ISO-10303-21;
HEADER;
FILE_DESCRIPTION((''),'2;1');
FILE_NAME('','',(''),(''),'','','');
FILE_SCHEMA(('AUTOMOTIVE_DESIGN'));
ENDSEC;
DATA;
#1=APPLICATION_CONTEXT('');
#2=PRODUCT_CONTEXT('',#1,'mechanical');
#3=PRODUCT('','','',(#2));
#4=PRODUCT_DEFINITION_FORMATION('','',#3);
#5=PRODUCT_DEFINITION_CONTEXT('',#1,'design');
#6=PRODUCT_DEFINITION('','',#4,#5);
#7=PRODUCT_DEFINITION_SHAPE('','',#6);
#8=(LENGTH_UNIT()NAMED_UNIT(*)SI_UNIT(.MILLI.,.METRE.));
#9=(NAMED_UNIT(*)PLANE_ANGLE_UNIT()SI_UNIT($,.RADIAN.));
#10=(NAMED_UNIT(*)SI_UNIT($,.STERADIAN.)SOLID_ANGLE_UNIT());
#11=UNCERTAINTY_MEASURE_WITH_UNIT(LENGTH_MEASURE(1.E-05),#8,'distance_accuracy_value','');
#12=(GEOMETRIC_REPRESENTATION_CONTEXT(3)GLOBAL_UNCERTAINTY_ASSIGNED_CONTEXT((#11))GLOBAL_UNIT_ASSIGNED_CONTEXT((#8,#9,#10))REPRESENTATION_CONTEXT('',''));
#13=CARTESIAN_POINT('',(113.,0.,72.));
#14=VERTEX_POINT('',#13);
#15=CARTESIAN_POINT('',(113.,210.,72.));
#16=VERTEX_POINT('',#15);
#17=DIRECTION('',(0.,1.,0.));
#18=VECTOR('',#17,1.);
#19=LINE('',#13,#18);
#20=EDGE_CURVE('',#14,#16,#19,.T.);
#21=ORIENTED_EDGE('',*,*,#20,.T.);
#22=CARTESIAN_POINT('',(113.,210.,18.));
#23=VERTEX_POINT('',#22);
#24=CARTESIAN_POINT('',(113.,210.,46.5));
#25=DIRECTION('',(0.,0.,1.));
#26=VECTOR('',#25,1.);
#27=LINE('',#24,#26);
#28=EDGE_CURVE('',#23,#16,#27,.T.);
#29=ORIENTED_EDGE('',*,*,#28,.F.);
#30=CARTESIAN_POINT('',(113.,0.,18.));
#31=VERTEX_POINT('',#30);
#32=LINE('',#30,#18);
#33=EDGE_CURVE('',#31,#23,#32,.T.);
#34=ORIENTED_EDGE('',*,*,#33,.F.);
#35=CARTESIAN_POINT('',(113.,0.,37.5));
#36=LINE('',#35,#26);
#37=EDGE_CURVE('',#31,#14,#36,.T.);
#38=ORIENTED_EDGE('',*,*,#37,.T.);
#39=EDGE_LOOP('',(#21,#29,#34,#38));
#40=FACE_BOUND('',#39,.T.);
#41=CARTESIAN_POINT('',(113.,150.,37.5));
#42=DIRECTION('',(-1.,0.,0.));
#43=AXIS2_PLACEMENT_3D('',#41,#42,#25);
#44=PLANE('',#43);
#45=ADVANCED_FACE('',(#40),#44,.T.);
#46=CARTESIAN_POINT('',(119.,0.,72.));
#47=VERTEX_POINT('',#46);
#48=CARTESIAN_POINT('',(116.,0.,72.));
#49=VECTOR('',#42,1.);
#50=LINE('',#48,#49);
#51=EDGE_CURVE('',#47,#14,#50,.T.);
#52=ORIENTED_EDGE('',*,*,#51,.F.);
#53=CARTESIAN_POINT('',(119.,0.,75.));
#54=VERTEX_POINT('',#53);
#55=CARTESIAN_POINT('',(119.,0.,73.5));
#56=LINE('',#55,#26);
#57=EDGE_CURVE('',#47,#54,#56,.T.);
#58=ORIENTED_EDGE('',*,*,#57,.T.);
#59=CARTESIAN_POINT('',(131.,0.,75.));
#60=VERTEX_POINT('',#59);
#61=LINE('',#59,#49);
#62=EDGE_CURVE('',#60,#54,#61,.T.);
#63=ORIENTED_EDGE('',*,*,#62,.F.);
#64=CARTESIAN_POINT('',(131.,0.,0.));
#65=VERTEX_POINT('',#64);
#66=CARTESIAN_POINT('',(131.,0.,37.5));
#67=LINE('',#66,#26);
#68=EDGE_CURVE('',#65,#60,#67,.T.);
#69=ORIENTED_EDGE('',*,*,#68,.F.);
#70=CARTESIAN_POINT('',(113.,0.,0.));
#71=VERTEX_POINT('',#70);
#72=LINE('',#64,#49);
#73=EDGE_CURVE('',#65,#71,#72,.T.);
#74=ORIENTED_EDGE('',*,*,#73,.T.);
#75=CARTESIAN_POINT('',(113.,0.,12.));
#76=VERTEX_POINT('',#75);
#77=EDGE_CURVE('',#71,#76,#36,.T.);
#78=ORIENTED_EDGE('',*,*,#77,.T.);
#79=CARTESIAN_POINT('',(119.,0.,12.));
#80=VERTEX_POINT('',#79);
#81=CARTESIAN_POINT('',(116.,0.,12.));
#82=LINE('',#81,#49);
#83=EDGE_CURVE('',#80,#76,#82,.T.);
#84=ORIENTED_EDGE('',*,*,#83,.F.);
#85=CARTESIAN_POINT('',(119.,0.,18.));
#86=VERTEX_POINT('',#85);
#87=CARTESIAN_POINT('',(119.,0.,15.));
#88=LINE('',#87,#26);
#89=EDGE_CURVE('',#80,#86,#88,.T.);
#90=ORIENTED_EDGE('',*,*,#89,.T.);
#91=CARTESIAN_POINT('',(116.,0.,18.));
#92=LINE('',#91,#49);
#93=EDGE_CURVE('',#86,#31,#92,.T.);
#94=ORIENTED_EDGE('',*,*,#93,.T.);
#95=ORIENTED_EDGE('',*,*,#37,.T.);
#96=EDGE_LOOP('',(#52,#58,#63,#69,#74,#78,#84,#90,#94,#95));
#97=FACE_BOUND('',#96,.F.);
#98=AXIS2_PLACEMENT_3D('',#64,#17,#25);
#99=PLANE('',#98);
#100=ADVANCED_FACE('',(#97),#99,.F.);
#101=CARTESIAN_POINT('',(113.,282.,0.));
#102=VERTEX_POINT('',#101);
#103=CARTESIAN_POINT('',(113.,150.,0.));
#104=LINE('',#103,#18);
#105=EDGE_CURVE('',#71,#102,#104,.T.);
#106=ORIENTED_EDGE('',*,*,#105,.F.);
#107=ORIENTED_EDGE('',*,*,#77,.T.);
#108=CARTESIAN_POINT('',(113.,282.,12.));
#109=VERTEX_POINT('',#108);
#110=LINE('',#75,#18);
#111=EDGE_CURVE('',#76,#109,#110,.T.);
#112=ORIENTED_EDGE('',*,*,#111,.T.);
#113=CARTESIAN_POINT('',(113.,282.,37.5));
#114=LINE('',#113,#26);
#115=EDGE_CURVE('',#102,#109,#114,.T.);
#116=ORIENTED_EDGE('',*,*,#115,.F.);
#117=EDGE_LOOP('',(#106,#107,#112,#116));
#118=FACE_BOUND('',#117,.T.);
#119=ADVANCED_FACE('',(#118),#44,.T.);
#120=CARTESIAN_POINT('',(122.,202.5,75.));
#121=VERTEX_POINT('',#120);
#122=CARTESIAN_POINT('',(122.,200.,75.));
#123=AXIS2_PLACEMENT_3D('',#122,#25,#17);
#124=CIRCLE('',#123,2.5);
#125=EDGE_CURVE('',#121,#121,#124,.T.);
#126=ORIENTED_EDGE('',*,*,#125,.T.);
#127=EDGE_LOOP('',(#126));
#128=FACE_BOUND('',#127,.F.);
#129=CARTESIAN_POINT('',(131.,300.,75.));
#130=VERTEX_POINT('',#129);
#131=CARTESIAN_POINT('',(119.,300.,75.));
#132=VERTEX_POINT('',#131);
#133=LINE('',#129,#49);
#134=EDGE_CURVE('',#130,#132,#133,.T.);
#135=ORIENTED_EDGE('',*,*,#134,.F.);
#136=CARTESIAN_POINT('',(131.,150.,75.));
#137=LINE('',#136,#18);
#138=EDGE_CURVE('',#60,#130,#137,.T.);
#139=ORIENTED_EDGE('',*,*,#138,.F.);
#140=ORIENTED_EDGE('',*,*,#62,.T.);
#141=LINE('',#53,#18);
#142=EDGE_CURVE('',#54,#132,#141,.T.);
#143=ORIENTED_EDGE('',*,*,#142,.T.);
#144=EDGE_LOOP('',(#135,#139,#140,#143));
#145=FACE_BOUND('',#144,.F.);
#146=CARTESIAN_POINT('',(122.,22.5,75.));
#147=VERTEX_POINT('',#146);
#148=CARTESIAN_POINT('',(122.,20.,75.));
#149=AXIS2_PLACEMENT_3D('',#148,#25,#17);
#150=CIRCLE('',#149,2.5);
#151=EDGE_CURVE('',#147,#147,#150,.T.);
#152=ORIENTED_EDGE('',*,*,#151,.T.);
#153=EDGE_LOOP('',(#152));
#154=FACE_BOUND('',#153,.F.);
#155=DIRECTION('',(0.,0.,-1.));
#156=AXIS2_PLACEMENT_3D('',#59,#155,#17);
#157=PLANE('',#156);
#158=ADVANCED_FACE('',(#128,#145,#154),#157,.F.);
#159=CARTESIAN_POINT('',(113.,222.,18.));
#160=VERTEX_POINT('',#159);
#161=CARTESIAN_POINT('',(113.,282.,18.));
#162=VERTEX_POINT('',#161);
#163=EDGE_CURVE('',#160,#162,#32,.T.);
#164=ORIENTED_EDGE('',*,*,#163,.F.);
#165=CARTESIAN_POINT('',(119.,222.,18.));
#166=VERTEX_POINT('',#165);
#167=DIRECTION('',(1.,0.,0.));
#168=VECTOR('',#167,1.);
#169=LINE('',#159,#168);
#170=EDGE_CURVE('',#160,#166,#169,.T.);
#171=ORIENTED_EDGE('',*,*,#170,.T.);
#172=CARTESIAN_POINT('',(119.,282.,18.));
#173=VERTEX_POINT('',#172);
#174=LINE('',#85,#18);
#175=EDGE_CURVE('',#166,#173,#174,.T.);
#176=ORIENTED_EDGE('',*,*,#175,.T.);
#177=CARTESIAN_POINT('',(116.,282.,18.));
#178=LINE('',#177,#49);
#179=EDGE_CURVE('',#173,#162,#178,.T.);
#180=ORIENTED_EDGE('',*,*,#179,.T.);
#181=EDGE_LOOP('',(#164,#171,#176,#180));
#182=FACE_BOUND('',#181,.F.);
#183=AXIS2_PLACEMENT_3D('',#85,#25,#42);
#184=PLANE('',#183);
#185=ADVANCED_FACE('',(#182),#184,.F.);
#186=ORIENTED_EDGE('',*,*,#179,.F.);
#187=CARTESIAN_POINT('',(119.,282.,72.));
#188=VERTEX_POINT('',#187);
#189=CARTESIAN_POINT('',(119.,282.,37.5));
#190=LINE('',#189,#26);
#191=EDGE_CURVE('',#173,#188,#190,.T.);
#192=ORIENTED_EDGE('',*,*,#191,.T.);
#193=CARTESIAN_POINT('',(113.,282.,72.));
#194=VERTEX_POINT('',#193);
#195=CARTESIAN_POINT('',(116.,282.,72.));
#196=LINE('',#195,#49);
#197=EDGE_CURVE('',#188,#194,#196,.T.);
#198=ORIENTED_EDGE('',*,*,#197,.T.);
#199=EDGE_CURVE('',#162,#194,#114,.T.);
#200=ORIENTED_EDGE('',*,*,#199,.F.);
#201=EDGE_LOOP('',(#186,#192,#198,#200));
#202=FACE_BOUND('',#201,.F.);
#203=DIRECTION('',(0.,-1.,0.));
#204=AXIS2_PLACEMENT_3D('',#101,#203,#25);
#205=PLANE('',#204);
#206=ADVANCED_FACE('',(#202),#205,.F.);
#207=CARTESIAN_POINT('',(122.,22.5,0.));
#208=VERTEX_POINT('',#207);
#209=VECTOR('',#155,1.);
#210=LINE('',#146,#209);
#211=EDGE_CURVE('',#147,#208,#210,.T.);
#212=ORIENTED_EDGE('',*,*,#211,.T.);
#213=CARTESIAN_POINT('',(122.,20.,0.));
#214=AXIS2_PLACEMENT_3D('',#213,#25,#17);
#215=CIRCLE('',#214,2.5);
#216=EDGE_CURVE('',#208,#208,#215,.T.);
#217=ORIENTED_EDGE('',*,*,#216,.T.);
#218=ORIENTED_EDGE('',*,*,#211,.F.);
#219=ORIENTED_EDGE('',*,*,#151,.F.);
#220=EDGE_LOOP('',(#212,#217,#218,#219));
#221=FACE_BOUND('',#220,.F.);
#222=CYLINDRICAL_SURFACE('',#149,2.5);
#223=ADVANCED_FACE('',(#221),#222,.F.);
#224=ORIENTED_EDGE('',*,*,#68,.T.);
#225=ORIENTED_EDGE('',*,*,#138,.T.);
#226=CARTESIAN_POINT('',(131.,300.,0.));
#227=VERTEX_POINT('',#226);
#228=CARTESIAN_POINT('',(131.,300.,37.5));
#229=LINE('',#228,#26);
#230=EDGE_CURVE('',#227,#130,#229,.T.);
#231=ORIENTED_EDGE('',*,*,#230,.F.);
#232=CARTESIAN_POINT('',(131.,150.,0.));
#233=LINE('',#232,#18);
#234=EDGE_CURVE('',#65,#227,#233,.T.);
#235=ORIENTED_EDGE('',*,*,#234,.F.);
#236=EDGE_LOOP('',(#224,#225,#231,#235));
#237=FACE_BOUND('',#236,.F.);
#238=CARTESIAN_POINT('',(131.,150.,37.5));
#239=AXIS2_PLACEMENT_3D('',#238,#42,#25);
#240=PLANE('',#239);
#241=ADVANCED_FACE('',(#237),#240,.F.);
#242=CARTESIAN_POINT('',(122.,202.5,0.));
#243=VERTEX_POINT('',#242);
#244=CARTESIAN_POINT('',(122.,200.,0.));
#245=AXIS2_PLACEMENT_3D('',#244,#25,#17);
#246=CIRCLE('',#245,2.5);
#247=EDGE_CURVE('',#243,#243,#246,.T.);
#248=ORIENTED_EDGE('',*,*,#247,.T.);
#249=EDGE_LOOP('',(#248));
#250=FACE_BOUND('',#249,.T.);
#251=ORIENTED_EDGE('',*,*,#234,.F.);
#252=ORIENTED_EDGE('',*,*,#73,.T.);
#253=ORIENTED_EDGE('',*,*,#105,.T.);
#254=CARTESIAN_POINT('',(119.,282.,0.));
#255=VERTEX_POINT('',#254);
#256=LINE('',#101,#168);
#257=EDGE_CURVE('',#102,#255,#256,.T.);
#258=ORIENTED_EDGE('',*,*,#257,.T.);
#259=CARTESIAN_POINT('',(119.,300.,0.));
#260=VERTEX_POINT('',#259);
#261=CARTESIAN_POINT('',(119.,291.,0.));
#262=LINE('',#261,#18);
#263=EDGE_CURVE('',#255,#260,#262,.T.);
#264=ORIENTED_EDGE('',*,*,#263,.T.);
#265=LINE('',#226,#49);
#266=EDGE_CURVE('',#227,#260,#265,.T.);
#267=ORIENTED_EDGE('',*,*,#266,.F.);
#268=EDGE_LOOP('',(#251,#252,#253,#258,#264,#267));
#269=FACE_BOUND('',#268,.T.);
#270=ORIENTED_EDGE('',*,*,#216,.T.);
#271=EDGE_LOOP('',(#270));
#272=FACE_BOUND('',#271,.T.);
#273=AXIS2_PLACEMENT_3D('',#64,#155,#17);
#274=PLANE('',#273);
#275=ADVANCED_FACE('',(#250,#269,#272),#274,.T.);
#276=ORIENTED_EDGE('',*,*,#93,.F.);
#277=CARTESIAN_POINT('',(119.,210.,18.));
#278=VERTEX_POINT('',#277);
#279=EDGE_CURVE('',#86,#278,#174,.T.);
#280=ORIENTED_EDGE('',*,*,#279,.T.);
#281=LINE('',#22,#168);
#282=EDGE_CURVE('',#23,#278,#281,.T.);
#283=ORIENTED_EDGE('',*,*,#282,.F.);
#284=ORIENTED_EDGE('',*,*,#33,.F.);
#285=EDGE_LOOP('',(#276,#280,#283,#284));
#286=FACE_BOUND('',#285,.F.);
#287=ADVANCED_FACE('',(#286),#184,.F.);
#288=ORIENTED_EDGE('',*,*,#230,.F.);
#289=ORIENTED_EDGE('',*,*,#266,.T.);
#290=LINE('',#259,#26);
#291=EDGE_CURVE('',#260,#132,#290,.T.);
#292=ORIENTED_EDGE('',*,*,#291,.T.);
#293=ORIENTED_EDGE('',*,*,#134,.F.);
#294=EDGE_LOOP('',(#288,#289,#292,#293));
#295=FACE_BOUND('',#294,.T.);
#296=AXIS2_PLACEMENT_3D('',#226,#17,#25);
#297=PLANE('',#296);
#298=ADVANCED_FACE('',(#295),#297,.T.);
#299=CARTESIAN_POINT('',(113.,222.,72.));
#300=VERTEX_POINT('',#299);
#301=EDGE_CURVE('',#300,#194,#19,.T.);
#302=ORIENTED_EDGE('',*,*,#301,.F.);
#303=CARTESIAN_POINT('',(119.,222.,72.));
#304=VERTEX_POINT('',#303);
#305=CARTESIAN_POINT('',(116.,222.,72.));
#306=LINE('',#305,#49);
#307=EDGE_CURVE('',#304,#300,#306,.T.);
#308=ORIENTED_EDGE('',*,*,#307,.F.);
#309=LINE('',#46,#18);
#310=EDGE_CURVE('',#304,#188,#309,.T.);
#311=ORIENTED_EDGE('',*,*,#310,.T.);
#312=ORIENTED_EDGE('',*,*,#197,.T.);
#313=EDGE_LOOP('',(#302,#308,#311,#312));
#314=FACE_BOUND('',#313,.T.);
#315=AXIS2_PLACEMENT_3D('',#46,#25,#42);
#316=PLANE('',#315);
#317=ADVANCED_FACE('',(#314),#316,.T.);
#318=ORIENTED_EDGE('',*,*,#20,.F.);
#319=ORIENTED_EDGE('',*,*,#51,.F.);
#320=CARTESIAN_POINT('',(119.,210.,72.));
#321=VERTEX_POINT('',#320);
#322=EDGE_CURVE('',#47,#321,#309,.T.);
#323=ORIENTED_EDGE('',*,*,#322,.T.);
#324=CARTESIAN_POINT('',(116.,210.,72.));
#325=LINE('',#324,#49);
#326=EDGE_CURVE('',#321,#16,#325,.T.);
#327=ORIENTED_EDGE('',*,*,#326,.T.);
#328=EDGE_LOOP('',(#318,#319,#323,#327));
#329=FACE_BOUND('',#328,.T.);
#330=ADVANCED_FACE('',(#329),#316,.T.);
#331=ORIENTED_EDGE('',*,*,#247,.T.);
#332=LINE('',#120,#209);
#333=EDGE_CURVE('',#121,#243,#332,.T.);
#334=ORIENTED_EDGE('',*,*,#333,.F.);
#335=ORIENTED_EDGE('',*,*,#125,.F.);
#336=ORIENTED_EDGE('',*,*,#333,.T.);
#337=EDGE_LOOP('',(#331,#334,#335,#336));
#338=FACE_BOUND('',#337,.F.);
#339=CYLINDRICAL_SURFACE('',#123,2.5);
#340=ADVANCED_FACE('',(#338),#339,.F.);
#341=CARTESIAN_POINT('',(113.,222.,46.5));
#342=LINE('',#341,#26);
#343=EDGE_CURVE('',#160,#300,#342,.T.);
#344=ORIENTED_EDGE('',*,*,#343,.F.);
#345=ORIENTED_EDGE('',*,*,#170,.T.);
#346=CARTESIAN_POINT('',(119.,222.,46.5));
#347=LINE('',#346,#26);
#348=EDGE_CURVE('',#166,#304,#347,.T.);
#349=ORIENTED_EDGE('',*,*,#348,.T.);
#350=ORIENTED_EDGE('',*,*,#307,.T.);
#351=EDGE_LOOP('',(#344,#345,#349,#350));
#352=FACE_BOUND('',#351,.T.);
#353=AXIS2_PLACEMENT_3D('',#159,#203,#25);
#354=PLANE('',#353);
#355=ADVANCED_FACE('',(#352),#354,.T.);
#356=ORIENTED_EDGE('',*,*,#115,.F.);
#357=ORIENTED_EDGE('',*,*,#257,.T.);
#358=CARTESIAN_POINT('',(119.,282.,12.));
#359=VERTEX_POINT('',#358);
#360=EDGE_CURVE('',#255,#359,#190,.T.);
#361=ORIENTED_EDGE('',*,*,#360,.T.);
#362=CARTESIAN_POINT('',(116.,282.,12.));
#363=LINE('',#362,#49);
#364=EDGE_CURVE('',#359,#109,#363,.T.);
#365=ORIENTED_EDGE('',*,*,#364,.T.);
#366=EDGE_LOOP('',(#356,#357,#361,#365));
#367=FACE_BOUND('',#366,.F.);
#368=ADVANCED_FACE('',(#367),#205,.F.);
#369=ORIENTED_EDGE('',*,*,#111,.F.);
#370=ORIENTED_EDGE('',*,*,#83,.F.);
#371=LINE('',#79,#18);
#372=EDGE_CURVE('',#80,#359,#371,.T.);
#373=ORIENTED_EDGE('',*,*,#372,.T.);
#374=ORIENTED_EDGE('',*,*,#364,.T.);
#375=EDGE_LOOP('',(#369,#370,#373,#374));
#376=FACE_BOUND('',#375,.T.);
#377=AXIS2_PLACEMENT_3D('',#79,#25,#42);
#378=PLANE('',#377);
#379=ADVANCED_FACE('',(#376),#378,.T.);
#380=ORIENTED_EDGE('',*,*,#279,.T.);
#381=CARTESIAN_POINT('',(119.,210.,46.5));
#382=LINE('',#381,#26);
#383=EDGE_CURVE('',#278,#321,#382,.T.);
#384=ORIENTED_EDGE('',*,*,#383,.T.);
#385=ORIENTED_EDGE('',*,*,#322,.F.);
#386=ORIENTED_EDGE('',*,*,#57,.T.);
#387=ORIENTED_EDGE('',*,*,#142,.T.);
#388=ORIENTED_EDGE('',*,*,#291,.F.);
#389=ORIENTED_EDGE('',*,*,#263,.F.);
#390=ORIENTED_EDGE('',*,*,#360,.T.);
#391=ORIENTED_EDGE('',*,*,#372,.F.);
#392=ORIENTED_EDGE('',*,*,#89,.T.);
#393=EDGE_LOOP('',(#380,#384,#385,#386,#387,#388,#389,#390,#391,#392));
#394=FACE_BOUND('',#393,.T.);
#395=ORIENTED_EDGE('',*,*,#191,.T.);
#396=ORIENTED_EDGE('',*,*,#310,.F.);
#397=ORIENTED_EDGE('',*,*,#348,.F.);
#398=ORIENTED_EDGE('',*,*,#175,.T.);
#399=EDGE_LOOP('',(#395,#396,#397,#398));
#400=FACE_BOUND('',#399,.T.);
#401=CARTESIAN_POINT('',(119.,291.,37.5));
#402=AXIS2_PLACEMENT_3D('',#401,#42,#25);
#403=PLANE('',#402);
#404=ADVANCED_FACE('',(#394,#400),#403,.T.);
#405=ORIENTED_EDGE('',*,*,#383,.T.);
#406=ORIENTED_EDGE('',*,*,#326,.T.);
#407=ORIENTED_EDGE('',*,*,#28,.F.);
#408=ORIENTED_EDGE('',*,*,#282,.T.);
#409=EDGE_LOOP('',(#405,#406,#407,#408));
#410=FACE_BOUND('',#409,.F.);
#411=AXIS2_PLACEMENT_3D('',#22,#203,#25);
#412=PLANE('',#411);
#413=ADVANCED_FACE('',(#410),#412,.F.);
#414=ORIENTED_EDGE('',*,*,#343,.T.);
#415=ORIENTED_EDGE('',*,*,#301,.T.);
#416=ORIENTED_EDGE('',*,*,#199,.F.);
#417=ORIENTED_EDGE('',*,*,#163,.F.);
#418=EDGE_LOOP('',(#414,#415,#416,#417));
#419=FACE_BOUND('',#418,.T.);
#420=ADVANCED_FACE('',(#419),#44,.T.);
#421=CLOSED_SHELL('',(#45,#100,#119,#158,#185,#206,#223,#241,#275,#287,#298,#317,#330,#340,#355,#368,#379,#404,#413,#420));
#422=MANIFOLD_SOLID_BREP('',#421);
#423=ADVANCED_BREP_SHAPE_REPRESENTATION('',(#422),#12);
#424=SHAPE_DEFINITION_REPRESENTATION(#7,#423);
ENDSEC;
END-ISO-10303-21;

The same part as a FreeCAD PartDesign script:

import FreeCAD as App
import Part
import Sketcher

V = App.Vector
Q = App.Units.Quantity


def add_polygon(sketch, points):
    """Adds a closed chain of lines whose ends are joined by coincident constraints."""
    first, n = sketch.GeometryCount, len(points)
    for a, b in zip(points, points[1:] + points[:1]):
        sketch.addGeometry(Part.LineSegment(App.Vector(*a, 0), App.Vector(*b, 0)), False)
    for i in range(n):
        sketch.addConstraint(Sketcher.Constraint("Coincident", first + i, 2, first + (i + 1) % n, 1))

doc = App.newDocument("Part")
body = doc.addObject("PartDesign::Body", "Body")

sketch1 = doc.addObject("Sketcher::SketchObject", "Sketch")
body.addObject(sketch1)
sketch1.AttachmentSupport = (doc.XY_Plane, [""])
sketch1.MapMode = "FlatFace"
add_polygon(sketch1, [(0, 300), (0, 0), (75, 0), (75, 300)])
sketch1.addConstraint([
    Sketcher.Constraint("Vertical", 0),
    Sketcher.Constraint("Horizontal", 1),
    Sketcher.Constraint("Vertical", 2),
    Sketcher.Constraint("Horizontal", 3),
    Sketcher.Constraint("Coincident", 0, 2, -1, 1),
    Sketcher.Constraint("DistanceX", 1, 1, 1, 2, Q("75 mm")),
    Sketcher.Constraint("DistanceY", 0, 2, 0, 1, Q("300 mm")),
])
pad1 = doc.addObject("PartDesign::Pad", "Pad")
body.addObject(pad1)
pad1.Profile = sketch1
pad1.Length = 18

sketch2 = doc.addObject("Sketcher::SketchObject", "Sketch001")
body.addObject(sketch2)
sketch2.AttachmentSupport = (doc.XY_Plane, [""])
sketch2.MapMode = "FlatFace"
sketch2.AttachmentOffset = App.Placement(V(0, 0, 18), App.Rotation())
add_polygon(sketch2, [(0, 300), (0, 282), (75, 282), (75, 300)])
add_polygon(sketch2, [(18, 222), (18, 210), (75, 210), (75, 222)])
sketch2.addConstraint([
    Sketcher.Constraint("Vertical", 0),
    Sketcher.Constraint("Horizontal", 1),
    Sketcher.Constraint("Vertical", 2),
    Sketcher.Constraint("Horizontal", 3),
    Sketcher.Constraint("Vertical", 4),
    Sketcher.Constraint("Horizontal", 5),
    Sketcher.Constraint("Vertical", 6),
    Sketcher.Constraint("Horizontal", 7),
    Sketcher.Constraint("PointOnObject", 0, 2, -2),
    Sketcher.Constraint("Vertical", 2, 2, 5, 2),
    Sketcher.Constraint("DistanceX", 1, 1, 1, 2, Q("75 mm")),
    Sketcher.Constraint("DistanceX", 5, 1, 5, 2, Q("57 mm")),
    Sketcher.Constraint("DistanceY", 0, 2, 0, 1, Q("18 mm")),
    Sketcher.Constraint("DistanceY", 4, 2, 4, 1, Q("12 mm")),
    Sketcher.Constraint("DistanceY", -1, 1, 0, 2, Q("282 mm")),
    Sketcher.Constraint("DistanceY", -1, 1, 4, 2, Q("210 mm")),
])
pocket1 = doc.addObject("PartDesign::Pocket", "Pocket")
body.addObject(pocket1)
pocket1.Profile = sketch2
pocket1.Length = 6

sketch3 = doc.addObject("Sketcher::SketchObject", "Sketch002")
body.addObject(sketch3)
sketch3.AttachmentSupport = (doc.XZ_Plane, [""])
sketch3.MapMode = "FlatFace"
add_polygon(sketch3, [(12, 18), (12, 12), (18, 12), (18, 18)])
add_polygon(sketch3, [(72, 18), (72, 12), (75, 12), (75, 18)])
sketch3.addConstraint([
    Sketcher.Constraint("Vertical", 0),
    Sketcher.Constraint("Horizontal", 1),
    Sketcher.Constraint("Vertical", 2),
    Sketcher.Constraint("Horizontal", 3),
    Sketcher.Constraint("Vertical", 4),
    Sketcher.Constraint("Horizontal", 5),
    Sketcher.Constraint("Vertical", 6),
    Sketcher.Constraint("Horizontal", 7),
    Sketcher.Constraint("Horizontal", 1, 2, 4, 2),
    Sketcher.Constraint("Horizontal", 3, 2, 6, 2),
    Sketcher.Constraint("Equal", 3, 0),
    Sketcher.Constraint("DistanceX", 1, 1, 1, 2, Q("6 mm")),
    Sketcher.Constraint("DistanceX", 5, 1, 5, 2, Q("3 mm")),
    Sketcher.Constraint("DistanceX", -1, 1, 0, 2, Q("12 mm")),
    Sketcher.Constraint("DistanceY", -1, 1, 0, 2, Q("12 mm")),
    Sketcher.Constraint("DistanceX", -1, 1, 4, 2, Q("72 mm")),
])
pocket2 = doc.addObject("PartDesign::Pocket", "Pocket001")
body.addObject(pocket2)
pocket2.Profile = sketch3
pocket2.Length = 300

sketch4 = doc.addObject("Sketcher::SketchObject", "Sketch003")
body.addObject(sketch4)
sketch4.AttachmentSupport = (doc.YZ_Plane, [""])
sketch4.MapMode = "FlatFace"
sketch4.AttachmentOffset = App.Placement(V(0, 0, 75), App.Rotation())
sketch4.addGeometry([
    Part.Circle(V(20, 9, 0), V(0, 0, 1), 2.5),
    Part.Circle(V(200, 9, 0), V(0, 0, 1), 2.5),
], False)
sketch4.addConstraint([
    Sketcher.Constraint("Equal", 0, 1),
    Sketcher.Constraint("Horizontal", 0, 3, 1, 3),
    Sketcher.Constraint("Diameter", 0, Q("5 mm")),
    Sketcher.Constraint("DistanceX", -1, 1, 0, 3, Q("20 mm")),
    Sketcher.Constraint("DistanceY", -1, 1, 0, 3, Q("9 mm")),
    Sketcher.Constraint("DistanceX", -1, 1, 1, 3, Q("200 mm")),
])
pocket3 = doc.addObject("PartDesign::Pocket", "Pocket002")
body.addObject(pocket3)
pocket3.Profile = sketch4
pocket3.Length = 75
body2 = doc.addObject("PartDesign::Body", "Body001")
doc.recompute()

body.Placement = App.Placement(V(131, 0, 0), App.Rotation(V(0, -1, 0), 90))
boolean = doc.addObject("PartDesign::Boolean", "Boolean")
body2.addObject(boolean)
boolean.Type = "Fuse"
boolean.addObjects([body])

doc.recompute()
